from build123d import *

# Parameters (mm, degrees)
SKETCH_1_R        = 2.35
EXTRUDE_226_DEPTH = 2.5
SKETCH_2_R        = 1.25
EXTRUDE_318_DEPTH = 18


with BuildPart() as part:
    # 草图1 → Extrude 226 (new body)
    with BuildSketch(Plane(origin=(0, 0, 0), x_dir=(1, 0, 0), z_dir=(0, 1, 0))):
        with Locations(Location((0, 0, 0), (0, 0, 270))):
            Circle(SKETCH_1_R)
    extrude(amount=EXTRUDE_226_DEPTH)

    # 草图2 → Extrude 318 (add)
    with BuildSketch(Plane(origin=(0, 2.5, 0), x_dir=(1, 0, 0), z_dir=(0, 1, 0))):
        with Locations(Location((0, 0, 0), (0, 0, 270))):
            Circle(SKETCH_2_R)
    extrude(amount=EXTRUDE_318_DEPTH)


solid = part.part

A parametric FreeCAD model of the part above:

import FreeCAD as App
import Part
import Sketcher

doc = App.newDocument("Part")
body = doc.addObject("PartDesign::Body", "Body")

sketch1 = body.newObject("Sketcher::SketchObject", "Sketch")
sketch1.AttachmentSupport = (doc.getObject("XZ_Plane"), [""])
sketch1.MapMode = "FlatFace"
sketch1.addGeometry(Part.Circle(App.Vector(0, 0, 0), App.Vector(0, 0, 1), 2.4), False)
sketch1.addConstraint([
    Sketcher.Constraint("Coincident", 0, 3, -1, 1),
    Sketcher.Constraint("Diameter", 0, 4.7),
])
pad1 = body.newObject("PartDesign::Pad", "Pad")
pad1.Profile = sketch1
pad1.Length = 2.5
pad1.Reversed = True

sketch2 = body.newObject("Sketcher::SketchObject", "Sketch001")
sketch2.AttachmentSupport = (doc.getObject("XZ_Plane"), [""])
sketch2.MapMode = "FlatFace"
sketch2.AttachmentOffset = App.Placement(App.Vector(0, 0, -2.5), App.Rotation())
sketch2.addGeometry(Part.Circle(App.Vector(0, 0, 0), App.Vector(0, 0, 1), 1.2), False)
sketch2.addConstraint([
    Sketcher.Constraint("Coincident", 0, 3, -1, 1),
    Sketcher.Constraint("Diameter", 0, 2.5),
])
pad2 = body.newObject("PartDesign::Pad", "Pad001")
pad2.Profile = sketch2
pad2.Length = 18
pad2.Reversed = True

doc.recompute()
